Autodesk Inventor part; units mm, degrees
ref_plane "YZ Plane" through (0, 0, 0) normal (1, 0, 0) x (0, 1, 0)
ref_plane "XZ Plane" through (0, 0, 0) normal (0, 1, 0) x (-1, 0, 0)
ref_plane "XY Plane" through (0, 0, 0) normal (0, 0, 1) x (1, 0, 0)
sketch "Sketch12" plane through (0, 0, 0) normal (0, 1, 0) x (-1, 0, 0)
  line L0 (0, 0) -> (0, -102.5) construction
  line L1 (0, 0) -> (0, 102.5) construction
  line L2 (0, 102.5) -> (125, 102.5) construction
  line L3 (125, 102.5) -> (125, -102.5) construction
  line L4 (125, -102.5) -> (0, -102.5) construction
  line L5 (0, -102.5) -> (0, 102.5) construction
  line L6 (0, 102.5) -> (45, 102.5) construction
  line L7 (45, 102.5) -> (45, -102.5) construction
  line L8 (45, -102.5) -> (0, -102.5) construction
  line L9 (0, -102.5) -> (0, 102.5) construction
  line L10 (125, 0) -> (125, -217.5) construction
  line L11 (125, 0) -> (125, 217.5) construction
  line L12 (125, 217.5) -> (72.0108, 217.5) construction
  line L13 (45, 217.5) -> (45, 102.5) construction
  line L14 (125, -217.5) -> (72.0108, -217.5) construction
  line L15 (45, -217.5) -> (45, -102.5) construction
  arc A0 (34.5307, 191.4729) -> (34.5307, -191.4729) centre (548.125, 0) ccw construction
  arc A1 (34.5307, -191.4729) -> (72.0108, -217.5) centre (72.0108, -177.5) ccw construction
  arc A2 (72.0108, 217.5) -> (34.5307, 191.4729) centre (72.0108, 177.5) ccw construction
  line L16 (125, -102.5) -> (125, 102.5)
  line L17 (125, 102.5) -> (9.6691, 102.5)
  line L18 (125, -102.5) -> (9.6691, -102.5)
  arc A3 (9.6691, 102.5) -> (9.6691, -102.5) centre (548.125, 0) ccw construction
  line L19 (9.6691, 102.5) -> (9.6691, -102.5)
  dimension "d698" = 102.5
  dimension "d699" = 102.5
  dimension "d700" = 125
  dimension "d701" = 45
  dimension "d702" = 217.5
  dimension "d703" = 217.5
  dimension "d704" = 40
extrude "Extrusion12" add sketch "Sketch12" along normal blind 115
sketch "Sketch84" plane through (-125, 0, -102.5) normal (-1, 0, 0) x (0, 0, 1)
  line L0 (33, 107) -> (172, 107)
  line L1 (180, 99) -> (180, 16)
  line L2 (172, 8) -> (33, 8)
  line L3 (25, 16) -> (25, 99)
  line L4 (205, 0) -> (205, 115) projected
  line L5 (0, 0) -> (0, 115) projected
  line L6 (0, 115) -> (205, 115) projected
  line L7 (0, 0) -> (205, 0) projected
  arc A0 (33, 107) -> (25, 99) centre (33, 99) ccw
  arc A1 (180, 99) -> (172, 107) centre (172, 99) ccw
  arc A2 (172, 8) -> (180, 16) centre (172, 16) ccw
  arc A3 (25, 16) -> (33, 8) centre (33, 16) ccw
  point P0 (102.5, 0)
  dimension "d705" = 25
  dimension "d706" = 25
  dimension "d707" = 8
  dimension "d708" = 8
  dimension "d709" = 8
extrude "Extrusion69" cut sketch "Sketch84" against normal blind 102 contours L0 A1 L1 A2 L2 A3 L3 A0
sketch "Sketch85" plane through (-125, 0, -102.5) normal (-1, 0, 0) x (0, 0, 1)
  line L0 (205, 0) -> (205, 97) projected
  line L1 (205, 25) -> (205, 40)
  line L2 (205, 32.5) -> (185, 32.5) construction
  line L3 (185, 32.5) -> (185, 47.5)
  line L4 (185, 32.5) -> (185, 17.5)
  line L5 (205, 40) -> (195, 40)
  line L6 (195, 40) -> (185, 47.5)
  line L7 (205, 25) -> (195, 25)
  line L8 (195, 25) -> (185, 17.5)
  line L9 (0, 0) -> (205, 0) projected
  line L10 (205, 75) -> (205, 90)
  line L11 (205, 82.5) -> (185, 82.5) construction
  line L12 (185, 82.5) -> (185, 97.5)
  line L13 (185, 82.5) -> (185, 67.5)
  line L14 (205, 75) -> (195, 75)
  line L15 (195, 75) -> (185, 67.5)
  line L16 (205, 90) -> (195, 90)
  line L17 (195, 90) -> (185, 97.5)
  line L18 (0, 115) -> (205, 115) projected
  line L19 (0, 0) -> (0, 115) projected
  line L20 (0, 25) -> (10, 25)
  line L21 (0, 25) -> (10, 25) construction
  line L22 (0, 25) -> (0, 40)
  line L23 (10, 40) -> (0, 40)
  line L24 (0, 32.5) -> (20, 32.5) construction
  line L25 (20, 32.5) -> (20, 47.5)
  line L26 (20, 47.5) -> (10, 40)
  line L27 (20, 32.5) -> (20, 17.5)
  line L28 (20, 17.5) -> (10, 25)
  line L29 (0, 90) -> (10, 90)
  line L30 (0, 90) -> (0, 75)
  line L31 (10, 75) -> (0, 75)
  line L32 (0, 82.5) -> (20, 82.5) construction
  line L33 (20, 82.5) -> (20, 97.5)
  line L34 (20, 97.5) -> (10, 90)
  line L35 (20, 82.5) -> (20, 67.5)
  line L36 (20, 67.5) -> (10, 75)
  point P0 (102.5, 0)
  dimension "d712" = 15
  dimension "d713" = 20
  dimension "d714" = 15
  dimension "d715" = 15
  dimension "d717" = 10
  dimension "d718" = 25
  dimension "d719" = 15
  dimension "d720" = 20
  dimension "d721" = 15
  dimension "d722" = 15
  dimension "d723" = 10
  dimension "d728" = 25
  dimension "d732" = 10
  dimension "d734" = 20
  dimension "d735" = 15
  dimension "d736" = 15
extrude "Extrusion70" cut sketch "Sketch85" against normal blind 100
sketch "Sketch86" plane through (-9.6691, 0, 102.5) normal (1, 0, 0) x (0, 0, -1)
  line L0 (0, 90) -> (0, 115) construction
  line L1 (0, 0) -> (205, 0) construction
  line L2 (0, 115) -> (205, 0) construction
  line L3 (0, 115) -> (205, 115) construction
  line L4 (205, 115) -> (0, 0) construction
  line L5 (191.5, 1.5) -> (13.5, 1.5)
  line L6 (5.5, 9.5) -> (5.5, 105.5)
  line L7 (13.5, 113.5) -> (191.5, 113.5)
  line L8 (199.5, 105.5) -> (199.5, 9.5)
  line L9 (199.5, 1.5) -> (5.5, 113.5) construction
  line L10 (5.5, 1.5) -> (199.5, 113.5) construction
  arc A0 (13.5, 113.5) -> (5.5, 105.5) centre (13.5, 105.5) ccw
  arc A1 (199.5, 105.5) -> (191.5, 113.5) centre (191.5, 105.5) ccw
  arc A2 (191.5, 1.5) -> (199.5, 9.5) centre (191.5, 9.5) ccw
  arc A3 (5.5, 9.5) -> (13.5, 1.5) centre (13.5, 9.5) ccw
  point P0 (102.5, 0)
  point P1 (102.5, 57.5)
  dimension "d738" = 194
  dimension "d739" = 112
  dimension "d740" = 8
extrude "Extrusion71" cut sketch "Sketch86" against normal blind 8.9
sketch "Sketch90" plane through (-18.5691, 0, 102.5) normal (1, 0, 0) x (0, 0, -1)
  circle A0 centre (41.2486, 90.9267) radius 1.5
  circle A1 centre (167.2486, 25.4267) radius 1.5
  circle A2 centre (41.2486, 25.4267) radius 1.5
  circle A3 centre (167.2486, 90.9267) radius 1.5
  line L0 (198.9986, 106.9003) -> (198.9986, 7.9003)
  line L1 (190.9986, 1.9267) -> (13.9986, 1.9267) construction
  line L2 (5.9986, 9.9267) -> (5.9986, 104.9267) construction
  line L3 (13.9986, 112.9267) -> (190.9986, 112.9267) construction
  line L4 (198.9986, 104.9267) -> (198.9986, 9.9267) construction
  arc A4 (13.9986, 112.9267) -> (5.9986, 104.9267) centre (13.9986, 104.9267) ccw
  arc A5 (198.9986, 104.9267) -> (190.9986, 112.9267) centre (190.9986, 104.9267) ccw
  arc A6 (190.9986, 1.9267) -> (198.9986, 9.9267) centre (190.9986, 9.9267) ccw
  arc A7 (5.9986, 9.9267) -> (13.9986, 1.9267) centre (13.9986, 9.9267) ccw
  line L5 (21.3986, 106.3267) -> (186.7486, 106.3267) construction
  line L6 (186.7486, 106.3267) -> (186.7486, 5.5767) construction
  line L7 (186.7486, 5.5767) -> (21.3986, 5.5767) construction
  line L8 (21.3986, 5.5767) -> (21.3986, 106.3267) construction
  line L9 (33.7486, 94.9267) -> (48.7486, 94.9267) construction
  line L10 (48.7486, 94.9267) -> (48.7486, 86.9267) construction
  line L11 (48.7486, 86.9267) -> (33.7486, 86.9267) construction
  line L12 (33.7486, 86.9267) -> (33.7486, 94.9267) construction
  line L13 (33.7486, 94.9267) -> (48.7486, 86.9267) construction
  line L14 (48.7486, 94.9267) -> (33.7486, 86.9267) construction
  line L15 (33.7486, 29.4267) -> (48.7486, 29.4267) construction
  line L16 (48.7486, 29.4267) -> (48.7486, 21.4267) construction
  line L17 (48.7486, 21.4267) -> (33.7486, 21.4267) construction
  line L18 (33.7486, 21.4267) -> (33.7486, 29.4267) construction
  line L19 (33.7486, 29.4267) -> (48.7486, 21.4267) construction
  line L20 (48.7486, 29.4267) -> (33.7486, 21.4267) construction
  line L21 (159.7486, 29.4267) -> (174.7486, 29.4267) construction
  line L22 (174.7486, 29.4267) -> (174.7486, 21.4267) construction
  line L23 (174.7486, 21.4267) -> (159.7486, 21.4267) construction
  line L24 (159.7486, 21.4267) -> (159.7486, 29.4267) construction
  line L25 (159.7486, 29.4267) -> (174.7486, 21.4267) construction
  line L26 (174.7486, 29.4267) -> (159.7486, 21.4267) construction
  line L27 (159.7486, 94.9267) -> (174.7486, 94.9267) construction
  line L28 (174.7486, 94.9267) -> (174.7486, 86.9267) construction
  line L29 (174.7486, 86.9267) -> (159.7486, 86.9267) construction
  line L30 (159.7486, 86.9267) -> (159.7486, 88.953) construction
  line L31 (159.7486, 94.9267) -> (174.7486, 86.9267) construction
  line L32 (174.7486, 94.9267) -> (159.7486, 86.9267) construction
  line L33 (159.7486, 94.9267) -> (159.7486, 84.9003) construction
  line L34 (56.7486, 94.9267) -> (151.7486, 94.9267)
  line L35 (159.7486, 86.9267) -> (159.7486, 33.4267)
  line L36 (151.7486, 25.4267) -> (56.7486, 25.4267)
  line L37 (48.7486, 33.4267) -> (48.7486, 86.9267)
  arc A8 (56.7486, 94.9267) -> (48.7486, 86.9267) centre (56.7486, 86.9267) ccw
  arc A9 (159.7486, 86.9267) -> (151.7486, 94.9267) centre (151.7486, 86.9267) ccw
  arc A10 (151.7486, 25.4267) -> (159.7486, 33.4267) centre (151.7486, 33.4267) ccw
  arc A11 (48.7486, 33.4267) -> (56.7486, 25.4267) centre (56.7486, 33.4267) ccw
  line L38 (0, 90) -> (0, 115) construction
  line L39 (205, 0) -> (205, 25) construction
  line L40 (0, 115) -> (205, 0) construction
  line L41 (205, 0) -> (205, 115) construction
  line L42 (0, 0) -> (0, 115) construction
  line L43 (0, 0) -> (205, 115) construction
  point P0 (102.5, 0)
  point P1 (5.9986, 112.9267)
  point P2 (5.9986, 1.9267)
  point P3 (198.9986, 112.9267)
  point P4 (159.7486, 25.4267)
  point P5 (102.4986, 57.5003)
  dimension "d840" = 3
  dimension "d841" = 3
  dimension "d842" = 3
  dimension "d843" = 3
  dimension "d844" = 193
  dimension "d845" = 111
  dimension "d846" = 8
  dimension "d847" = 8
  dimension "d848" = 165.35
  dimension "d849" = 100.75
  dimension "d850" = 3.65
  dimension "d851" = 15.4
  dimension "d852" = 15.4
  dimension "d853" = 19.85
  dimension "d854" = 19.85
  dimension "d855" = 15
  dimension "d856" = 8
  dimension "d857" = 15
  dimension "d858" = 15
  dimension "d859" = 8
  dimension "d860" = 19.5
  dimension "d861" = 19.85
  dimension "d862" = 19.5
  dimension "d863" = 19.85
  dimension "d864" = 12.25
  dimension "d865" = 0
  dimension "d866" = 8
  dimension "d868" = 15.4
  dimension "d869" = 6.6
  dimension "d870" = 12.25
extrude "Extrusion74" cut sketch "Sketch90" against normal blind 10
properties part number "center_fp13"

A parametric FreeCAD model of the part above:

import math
import FreeCAD as App
import Part
import Sketcher

V = App.Vector


def add_polygon(sketch, points):
    """Adds a closed chain of lines whose ends are joined by coincident constraints."""
    first, n = sketch.GeometryCount, len(points)
    for a, b in zip(points, points[1:] + points[:1]):
        sketch.addGeometry(Part.LineSegment(App.Vector(*a, 0), App.Vector(*b, 0)), False)
    for i in range(n):
        sketch.addConstraint(Sketcher.Constraint("Coincident", first + i, 2, first + (i + 1) % n, 1))

doc = App.newDocument("Part")
body = doc.addObject("PartDesign::Body", "Body")

sketch1 = body.newObject("Sketcher::SketchObject", "Sketch")
sketch1.AttachmentSupport = (doc.getObject("XZ_Plane"), [""])
sketch1.MapMode = "FlatFace"
add_polygon(sketch1, [(-9.6691, -102.5), (-125, -102.5), (-125, 102.5), (-9.6691, 102.5)])
sketch1.addConstraint([
    Sketcher.Constraint("Horizontal", 0),
    Sketcher.Constraint("Vertical", 1),
    Sketcher.Constraint("Horizontal", 2),
    Sketcher.Constraint("Vertical", 3),
    Sketcher.Constraint("DistanceX", 0, 2, -1, 1, 125.0),
    Sketcher.Constraint("DistanceY", 0, 2, -1, 1, 102.5),
    Sketcher.Constraint("DistanceY", -1, 1, 1, 2, 102.5),
    Sketcher.Constraint("DistanceX", 0, 2, 0, 1, 115.331),
])
pad1 = body.newObject("PartDesign::Pad", "Pad")
pad1.Profile = sketch1
pad1.Length = 115
pad1.Reversed = True

sketch2 = body.newObject("Sketcher::SketchObject", "Sketch001")
sketch2.AttachmentSupport = (doc.getObject("YZ_Plane"), [""])
sketch2.MapMode = "FlatFace"
sketch2.AttachmentOffset = App.Placement(V(0, 0, -125), App.Rotation())
sketch2.addGeometry([
    Part.LineSegment(V(107, 69.5, 0), V(107, -69.5, 0)),
    Part.ArcOfCircle(Part.Circle(V(99, -69.5, 0), V(0, 0, 1), 8), math.radians(-90), math.radians(0)),
    Part.LineSegment(V(99, -77.5, 0), V(16, -77.5, 0)),
    Part.ArcOfCircle(Part.Circle(V(16, -69.5, 0), V(0, 0, 1), 8), math.radians(180), math.radians(270)),
    Part.LineSegment(V(8, -69.5, 0), V(8, 69.5, 0)),
    Part.ArcOfCircle(Part.Circle(V(16, 69.5, 0), V(0, 0, 1), 8), math.radians(90), math.radians(180)),
    Part.LineSegment(V(16, 77.5, 0), V(99, 77.5, 0)),
    Part.ArcOfCircle(Part.Circle(V(99, 69.5, 0), V(0, 0, 1), 8), math.radians(0), math.radians(90)),
], False)
sketch2.addConstraint([
    Sketcher.Constraint("Tangent", 0, 2, 1, 2),
    Sketcher.Constraint("Tangent", 1, 1, 2, 1),
    Sketcher.Constraint("Tangent", 2, 2, 3, 2),
    Sketcher.Constraint("Tangent", 3, 1, 4, 1),
    Sketcher.Constraint("Tangent", 4, 2, 5, 2),
    Sketcher.Constraint("Tangent", 5, 1, 6, 1),
    Sketcher.Constraint("Tangent", 6, 2, 7, 2),
    Sketcher.Constraint("Tangent", 7, 1, 0, 1),
    Sketcher.Constraint("Vertical", 0),
    Sketcher.Constraint("Horizontal", 2),
    Sketcher.Constraint("Vertical", 4),
    Sketcher.Constraint("Horizontal", 6),
    Sketcher.Constraint("Equal", 1, 3),
    Sketcher.Constraint("Equal", 3, 5),
    Sketcher.Constraint("Equal", 5, 7),
    Sketcher.Constraint("Radius", 1, 8.0),
    Sketcher.Constraint("DistanceX", -1, 1, 3, 1, 8.0),
    Sketcher.Constraint("DistanceX", 2, 2, 2, 1, 83.0),
    Sketcher.Constraint("DistanceY", 0, 2, 0, 1, 139.0),
    Sketcher.Constraint("DistanceY", 1, 3, -1, 1, 69.5),
])
pocket1 = body.newObject("PartDesign::Pocket", "Pocket")
pocket1.Profile = sketch2
pocket1.Length = 102
pocket1.Reversed = True

sketch3 = body.newObject("Sketcher::SketchObject", "Sketch002")
sketch3.AttachmentSupport = (doc.getObject("YZ_Plane"), [""])
sketch3.MapMode = "FlatFace"
sketch3.AttachmentOffset = App.Placement(V(0, 0, -125), App.Rotation())
add_polygon(sketch3, [(75, 92.5), (75, 102.5), (90, 102.5), (90, 92.5), (97.5, 82.5), (67.5, 82.5)])
add_polygon(sketch3, [(25, 92.5), (25, 102.5), (40, 102.5), (40, 92.5), (47.5, 82.5), (17.5, 82.5)])
add_polygon(sketch3, [(90, -102.5), (75, -102.5), (75, -92.5), (67.5, -82.5), (97.5, -82.5), (90, -92.5)])
add_polygon(sketch3, [(40, -102.5), (25, -102.5), (25, -92.5), (17.5, -82.5), (47.5, -82.5), (40, -92.5)])
sketch3.addConstraint([
    Sketcher.Constraint("Vertical", 0),
    Sketcher.Constraint("Horizontal", 1),
    Sketcher.Constraint("Vertical", 2),
    Sketcher.Constraint("Horizontal", 4),
    Sketcher.Constraint("Vertical", 6),
    Sketcher.Constraint("Horizontal", 7),
    Sketcher.Constraint("Vertical", 8),
    Sketcher.Constraint("Horizontal", 10),
    Sketcher.Constraint("Horizontal", 12),
    Sketcher.Constraint("Vertical", 13),
    Sketcher.Constraint("Horizontal", 15),
    Sketcher.Constraint("Vertical", 17),
    Sketcher.Constraint("Horizontal", 18),
    Sketcher.Constraint("Vertical", 19),
    Sketcher.Constraint("Horizontal", 21),
    Sketcher.Constraint("Vertical", 23),
    Sketcher.Constraint("Symmetric", 0, 2, 12, 2, -1),
    Sketcher.Constraint("Symmetric", 4, 2, 14, 2, -1),
    Sketcher.Constraint("Symmetric", 2, 2, 16, 2, -1),
    Sketcher.Constraint("Symmetric", 6, 2, 18, 2, -1),
    Sketcher.Constraint("Symmetric", 10, 2, 20, 2, -1),
    Sketcher.Constraint("Symmetric", 8, 2, 22, 2, -1),
    Sketcher.Constraint("Parallel", 3, 9),
    Sketcher.Constraint("Parallel", 5, 11),
    Sketcher.Constraint("Parallel", 9, 14),
    Sketcher.Constraint("Parallel", 11, 16),
    Sketcher.Constraint("Parallel", 14, 20),
    Sketcher.Constraint("Parallel", 16, 22),
    Sketcher.Constraint("Horizontal", 2, 2, 5, 2),
    Sketcher.Constraint("Horizontal", 1, 2, 6, 2),
    Sketcher.Constraint("Horizontal", 5, 2, 8, 2),
    Sketcher.Constraint("Horizontal", 4, 2, 9, 2),
    Sketcher.Constraint("Horizontal", 8, 2, 11, 2),
    Sketcher.Constraint("Horizontal", 13, 2, 16, 2),
    Sketcher.Constraint("Equal", 1, 7),
    Sketcher.Constraint("DistanceX", 1, 1, 1, 2, 15.0),
    Sketcher.Constraint("DistanceY", 0, 1, 0, 2, 10.0),
    Sketcher.Constraint("DistanceX", -1, 1, 6, 2, 25.0),
    Sketcher.Constraint("DistanceY", 3, 2, 2, 2, 10.0),
    Sketcher.Constraint("DistanceX", 9, 2, 4, 2, 20.0),
    Sketcher.Constraint("DistanceX", 4, 2, 4, 1, 30.0),
    Sketcher.Constraint("DistanceY", 12, 2, 4, 2, 185.0),
])
pocket2 = body.newObject("PartDesign::Pocket", "Pocket001")
pocket2.Profile = sketch3
pocket2.Length = 100
pocket2.Reversed = True

sketch4 = body.newObject("Sketcher::SketchObject", "Sketch003")
sketch4.AttachmentSupport = (doc.getObject("YZ_Plane"), [""])
sketch4.MapMode = "FlatFace"
sketch4.AttachmentOffset = App.Placement(V(0, 0, -9.6691), App.Rotation())
sketch4.addGeometry([
    Part.LineSegment(V(1.5, 89, 0), V(1.5, -89, 0)),
    Part.ArcOfCircle(Part.Circle(V(9.5, -89, 0), V(0, 0, 1), 8), math.radians(180), math.radians(270)),
    Part.LineSegment(V(9.5, -97, 0), V(105.5, -97, 0)),
    Part.ArcOfCircle(Part.Circle(V(105.5, -89, 0), V(0, 0, 1), 8), math.radians(-90), math.radians(0)),
    Part.LineSegment(V(113.5, -89, 0), V(113.5, 89, 0)),
    Part.ArcOfCircle(Part.Circle(V(105.5, 89, 0), V(0, 0, 1), 8), math.radians(0), math.radians(90)),
    Part.LineSegment(V(105.5, 97, 0), V(9.5, 97, 0)),
    Part.ArcOfCircle(Part.Circle(V(9.5, 89, 0), V(0, 0, 1), 8), math.radians(90), math.radians(180)),
], False)
sketch4.addConstraint([
    Sketcher.Constraint("Tangent", 0, 2, 1, 1),
    Sketcher.Constraint("Tangent", 1, 2, 2, 1),
    Sketcher.Constraint("Tangent", 2, 2, 3, 1),
    Sketcher.Constraint("Tangent", 3, 2, 4, 1),
    Sketcher.Constraint("Tangent", 4, 2, 5, 1),
    Sketcher.Constraint("Tangent", 5, 2, 6, 1),
    Sketcher.Constraint("Tangent", 6, 2, 7, 1),
    Sketcher.Constraint("Tangent", 7, 2, 0, 1),
    Sketcher.Constraint("Vertical", 0),
    Sketcher.Constraint("Horizontal", 2),
    Sketcher.Constraint("Vertical", 4),
    Sketcher.Constraint("Horizontal", 6),
    Sketcher.Constraint("Equal", 1, 3),
    Sketcher.Constraint("Equal", 3, 5),
    Sketcher.Constraint("Equal", 5, 7),
    Sketcher.Constraint("Radius", 1, 8.0),
    Sketcher.Constraint("DistanceX", 0, 2, 3, 2, 112.0),
    Sketcher.Constraint("DistanceY", 0, 2, 0, 1, 178.0),
    Sketcher.Constraint("DistanceY", 1, 3, -1, 1, 89.0),
    Sketcher.Constraint("DistanceX", -1, 1, 1, 3, 9.5),
])
pocket3 = body.newObject("PartDesign::Pocket", "Pocket002")
pocket3.Profile = sketch4
pocket3.Length = 8.9

sketch5 = body.newObject("Sketcher::SketchObject", "Sketch004")
sketch5.AttachmentSupport = (doc.getObject("YZ_Plane"), [""])
sketch5.MapMode = "FlatFace"
sketch5.AttachmentOffset = App.Placement(V(0, 0, -18.5691), App.Rotation())
sketch5.addGeometry([
    Part.Circle(V(90.9267, 61.2514, 0), V(0, 0, 1), 1.5),
    Part.Circle(V(25.4267, -64.7486, 0), V(0, 0, 1), 1.5),
    Part.Circle(V(25.4267, 61.2514, 0), V(0, 0, 1), 1.5),
    Part.Circle(V(90.9267, -64.7486, 0), V(0, 0, 1), 1.5),
    Part.LineSegment(V(94.9267, -49.2486, 0), V(94.9267, 45.7514, 0)),
    Part.ArcOfCircle(Part.Circle(V(86.9267, 45.7514, 0), V(0, 0, 1), 8), math.radians(0), math.radians(90)),
    Part.LineSegment(V(86.9267, 53.7514, 0), V(33.4267, 53.7514, 0)),
    Part.ArcOfCircle(Part.Circle(V(33.4267, 45.7514, 0), V(0, 0, 1), 8), math.radians(90), math.radians(180)),
    Part.LineSegment(V(25.4267, 45.7514, 0), V(25.4267, -49.2486, 0)),
    Part.ArcOfCircle(Part.Circle(V(33.4267, -49.2486, 0), V(0, 0, 1), 8), math.radians(180), math.radians(270)),
    Part.LineSegment(V(33.4267, -57.2486, 0), V(86.9267, -57.2486, 0)),
    Part.ArcOfCircle(Part.Circle(V(86.9267, -49.2486, 0), V(0, 0, 1), 8), math.radians(-90), math.radians(0)),
], False)
sketch5.addConstraint([
    Sketcher.Constraint("Tangent", 4, 2, 5, 1),
    Sketcher.Constraint("Tangent", 5, 2, 6, 1),
    Sketcher.Constraint("Tangent", 6, 2, 7, 1),
    Sketcher.Constraint("Tangent", 7, 2, 8, 1),
    Sketcher.Constraint("Tangent", 8, 2, 9, 1),
    Sketcher.Constraint("Tangent", 9, 2, 10, 1),
    Sketcher.Constraint("Tangent", 10, 2, 11, 1),
    Sketcher.Constraint("Tangent", 11, 2, 4, 1),
    Sketcher.Constraint("Vertical", 4),
    Sketcher.Constraint("Horizontal", 6),
    Sketcher.Constraint("Vertical", 8),
    Sketcher.Constraint("Horizontal", 10),
    Sketcher.Constraint("Equal", 0, 1),
    Sketcher.Constraint("Equal", 1, 2),
    Sketcher.Constraint("Equal", 2, 3),
    Sketcher.Constraint("Equal", 5, 7),
    Sketcher.Constraint("Equal", 7, 9),
    Sketcher.Constraint("Equal", 9, 11),
    Sketcher.Constraint("Horizontal", 0, 3, 2, 3),
    Sketcher.Constraint("Horizontal", 1, 3, 3, 3),
    Sketcher.Constraint("Vertical", 1, 3, 2, 3),
    Sketcher.Constraint("Vertical", 0, 3, 3, 3),
    Sketcher.Constraint("Vertical", 2, 3, 7, 2),
    Sketcher.Constraint("Diameter", 0, 3.0),
    Sketcher.Constraint("Radius", 5, 8.0),
    Sketcher.Constraint("DistanceY", 4, 1, 4, 2, 95.0),
    Sketcher.Constraint("DistanceX", 6, 2, 6, 1, 53.5),
    Sketcher.Constraint("DistanceY", 1, 3, 0, 3, 126.0),
    Sketcher.Constraint("DistanceX", 5, 3, 0, 3, 4.0),
    Sketcher.Constraint("DistanceY", 5, 3, 0, 3, 15.5),
    Sketcher.Constraint("DistanceX", -1, 1, 0, 3, 90.9267),
    Sketcher.Constraint("DistanceY", -1, 1, 0, 3, 61.2514),
])
pocket4 = body.newObject("PartDesign::Pocket", "Pocket003")
pocket4.Profile = sketch5
pocket4.Length = 10

doc.recompute()
